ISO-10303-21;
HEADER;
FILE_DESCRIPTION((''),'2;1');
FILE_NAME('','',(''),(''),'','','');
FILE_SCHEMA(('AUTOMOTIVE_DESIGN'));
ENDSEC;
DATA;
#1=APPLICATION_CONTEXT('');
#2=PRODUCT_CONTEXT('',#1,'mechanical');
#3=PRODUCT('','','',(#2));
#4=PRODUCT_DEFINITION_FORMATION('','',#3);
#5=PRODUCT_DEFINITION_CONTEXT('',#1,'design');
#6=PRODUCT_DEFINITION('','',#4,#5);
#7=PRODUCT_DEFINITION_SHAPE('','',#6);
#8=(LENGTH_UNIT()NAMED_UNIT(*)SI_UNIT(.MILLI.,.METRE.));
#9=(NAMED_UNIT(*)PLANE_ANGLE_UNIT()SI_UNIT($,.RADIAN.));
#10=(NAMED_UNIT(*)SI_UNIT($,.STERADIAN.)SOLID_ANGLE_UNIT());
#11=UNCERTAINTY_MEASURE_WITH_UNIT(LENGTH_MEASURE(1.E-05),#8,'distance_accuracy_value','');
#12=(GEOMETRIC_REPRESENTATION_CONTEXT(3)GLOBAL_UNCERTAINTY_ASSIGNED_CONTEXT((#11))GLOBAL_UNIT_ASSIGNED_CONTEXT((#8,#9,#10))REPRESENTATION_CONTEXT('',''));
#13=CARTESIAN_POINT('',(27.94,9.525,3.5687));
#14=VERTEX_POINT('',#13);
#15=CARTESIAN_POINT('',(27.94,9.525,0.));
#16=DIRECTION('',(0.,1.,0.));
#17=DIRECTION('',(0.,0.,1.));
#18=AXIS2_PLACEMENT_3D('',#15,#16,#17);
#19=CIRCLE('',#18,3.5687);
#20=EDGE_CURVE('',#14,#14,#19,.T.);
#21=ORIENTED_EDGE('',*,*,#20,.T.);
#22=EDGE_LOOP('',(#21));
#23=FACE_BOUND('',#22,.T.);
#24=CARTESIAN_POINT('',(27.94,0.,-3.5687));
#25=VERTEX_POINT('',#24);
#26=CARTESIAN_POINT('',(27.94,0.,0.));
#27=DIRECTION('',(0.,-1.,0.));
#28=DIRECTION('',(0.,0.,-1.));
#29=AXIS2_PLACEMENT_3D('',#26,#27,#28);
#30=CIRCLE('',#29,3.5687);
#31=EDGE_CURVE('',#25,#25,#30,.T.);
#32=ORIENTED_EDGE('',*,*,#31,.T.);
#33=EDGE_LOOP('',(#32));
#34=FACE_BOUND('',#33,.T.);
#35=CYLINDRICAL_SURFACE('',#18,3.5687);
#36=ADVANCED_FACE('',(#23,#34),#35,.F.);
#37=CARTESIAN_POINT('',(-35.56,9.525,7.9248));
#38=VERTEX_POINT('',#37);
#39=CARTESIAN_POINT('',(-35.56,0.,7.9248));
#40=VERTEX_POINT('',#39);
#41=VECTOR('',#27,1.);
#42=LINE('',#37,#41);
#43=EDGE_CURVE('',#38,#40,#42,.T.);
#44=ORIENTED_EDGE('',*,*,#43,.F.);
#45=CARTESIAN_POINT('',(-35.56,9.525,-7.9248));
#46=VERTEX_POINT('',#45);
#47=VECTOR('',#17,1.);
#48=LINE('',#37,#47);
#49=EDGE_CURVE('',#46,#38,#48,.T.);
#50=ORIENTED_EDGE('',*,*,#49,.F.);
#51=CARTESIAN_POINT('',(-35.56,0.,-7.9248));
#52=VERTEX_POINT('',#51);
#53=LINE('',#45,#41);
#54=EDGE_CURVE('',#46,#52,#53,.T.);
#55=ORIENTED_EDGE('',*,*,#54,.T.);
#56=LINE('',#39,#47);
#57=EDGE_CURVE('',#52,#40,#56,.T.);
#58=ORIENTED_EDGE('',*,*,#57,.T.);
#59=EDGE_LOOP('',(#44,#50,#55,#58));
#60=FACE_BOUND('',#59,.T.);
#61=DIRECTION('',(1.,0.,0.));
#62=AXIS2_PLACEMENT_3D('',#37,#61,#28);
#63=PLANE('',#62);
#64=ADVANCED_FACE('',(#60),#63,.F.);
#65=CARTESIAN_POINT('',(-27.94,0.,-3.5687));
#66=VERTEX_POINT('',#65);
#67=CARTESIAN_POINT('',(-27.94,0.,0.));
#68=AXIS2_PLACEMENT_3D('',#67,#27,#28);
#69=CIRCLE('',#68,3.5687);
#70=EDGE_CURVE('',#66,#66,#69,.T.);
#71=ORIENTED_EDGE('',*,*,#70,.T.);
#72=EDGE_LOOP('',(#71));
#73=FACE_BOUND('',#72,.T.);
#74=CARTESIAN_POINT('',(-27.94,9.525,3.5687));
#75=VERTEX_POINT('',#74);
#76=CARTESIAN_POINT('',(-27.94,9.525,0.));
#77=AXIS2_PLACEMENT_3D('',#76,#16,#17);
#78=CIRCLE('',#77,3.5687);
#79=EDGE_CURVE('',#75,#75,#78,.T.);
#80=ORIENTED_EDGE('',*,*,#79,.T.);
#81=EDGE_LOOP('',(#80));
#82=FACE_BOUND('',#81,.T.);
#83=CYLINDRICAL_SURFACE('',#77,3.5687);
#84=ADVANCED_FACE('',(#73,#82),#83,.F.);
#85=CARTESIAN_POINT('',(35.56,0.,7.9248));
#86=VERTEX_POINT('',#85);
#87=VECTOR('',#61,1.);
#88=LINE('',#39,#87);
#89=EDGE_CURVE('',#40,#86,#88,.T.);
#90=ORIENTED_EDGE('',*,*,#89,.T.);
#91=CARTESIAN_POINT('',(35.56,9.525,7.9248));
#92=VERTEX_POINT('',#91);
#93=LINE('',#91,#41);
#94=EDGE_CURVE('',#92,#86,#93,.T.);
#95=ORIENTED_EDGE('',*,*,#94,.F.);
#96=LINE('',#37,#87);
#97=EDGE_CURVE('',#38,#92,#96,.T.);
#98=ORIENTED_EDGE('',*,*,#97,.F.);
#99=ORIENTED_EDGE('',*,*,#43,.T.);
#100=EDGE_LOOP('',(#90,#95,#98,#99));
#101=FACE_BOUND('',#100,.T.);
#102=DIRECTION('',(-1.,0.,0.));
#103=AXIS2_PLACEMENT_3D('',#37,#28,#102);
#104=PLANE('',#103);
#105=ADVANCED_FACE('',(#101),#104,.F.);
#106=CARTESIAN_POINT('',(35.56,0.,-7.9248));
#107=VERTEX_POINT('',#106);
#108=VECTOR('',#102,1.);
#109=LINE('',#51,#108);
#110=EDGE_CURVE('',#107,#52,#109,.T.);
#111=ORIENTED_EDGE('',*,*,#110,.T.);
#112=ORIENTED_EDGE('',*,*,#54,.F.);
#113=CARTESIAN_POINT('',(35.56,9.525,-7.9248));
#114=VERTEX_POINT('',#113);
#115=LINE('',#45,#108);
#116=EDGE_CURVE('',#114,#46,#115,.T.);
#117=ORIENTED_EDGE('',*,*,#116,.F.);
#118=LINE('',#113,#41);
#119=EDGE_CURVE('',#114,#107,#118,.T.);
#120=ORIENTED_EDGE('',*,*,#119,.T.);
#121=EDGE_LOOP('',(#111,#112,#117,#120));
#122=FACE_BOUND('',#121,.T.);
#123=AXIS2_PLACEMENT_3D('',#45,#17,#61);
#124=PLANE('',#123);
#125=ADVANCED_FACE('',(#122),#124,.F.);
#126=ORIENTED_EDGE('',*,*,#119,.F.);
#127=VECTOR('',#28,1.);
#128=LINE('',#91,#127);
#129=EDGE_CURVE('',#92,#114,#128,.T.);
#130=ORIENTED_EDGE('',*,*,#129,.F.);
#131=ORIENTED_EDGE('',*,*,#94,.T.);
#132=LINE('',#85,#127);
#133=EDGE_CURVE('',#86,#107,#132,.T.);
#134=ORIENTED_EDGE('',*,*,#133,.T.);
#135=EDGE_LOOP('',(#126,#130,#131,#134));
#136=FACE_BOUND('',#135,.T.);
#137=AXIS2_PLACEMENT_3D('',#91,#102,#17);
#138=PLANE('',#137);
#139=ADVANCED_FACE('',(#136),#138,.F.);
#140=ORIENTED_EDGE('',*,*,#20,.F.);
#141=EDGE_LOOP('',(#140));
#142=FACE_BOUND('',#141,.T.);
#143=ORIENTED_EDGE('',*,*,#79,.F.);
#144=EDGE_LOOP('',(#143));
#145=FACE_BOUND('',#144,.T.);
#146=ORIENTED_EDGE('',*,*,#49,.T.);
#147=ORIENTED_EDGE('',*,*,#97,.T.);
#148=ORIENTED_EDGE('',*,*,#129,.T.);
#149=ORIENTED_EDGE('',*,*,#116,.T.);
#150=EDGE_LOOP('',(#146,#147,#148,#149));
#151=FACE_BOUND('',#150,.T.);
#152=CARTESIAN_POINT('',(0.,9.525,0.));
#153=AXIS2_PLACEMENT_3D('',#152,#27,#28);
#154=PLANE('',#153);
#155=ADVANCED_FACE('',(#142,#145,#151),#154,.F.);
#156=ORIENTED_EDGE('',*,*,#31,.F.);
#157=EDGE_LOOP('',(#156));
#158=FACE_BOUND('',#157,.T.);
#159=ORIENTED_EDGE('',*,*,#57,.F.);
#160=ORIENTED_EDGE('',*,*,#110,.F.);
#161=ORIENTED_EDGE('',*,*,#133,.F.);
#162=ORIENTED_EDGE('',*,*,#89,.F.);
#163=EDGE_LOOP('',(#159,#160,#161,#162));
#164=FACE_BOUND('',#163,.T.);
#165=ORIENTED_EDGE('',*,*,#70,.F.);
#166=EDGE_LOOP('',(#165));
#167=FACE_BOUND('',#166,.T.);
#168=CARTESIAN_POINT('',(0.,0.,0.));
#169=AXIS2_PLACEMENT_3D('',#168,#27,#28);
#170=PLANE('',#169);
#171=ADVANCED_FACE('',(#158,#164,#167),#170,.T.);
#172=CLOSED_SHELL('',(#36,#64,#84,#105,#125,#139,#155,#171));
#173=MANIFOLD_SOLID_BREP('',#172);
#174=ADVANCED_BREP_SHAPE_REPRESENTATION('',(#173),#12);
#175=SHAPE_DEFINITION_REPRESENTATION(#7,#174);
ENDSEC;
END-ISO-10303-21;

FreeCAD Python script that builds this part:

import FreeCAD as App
import Part
import Sketcher
Q = App.Units.Quantity


def add_polygon(sketch, points):
    """Adds a closed chain of lines whose ends are joined by coincident constraints."""
    first, n = sketch.GeometryCount, len(points)
    for a, b in zip(points, points[1:] + points[:1]):
        sketch.addGeometry(Part.LineSegment(App.Vector(*a, 0), App.Vector(*b, 0)), False)
    for i in range(n):
        sketch.addConstraint(Sketcher.Constraint("Coincident", first + i, 2, first + (i + 1) % n, 1))

doc = App.newDocument("Part")
params = doc.addObject("Spreadsheet::Sheet", "Params")
for row, (alias, value) in enumerate([
    ("sketch1_width", "2.8 in"),
    ("sketch1_height", "0.624 in"),
    ("pad1_length", "0.375 in"),
    ("sketch2_diameter", "0.281 in"),
    ("hole_diameter", "0.281 in"),
    ("hole_depth", "0.375 in"),
], start=1):
    params.set(f"A{row}", alias)
    params.set(f"B{row}", "=" + value)
    params.setAlias(f"B{row}", alias)

body = doc.addObject("PartDesign::Body", "Body")

# Sketch on XZ plane
sketch1 = doc.addObject("Sketcher::SketchObject", "Sketch")
body.addObject(sketch1)
sketch1.AttachmentSupport = (doc.XZ_Plane, [""])
sketch1.MapMode = "FlatFace"
add_polygon(sketch1, [(-36, -8), (-36, 8), (36, 8), (36, -8)])  # lines 0-3
sketch1.addConstraint(Sketcher.Constraint("Vertical", 0))
sketch1.addConstraint(Sketcher.Constraint("Horizontal", 1))
sketch1.addConstraint(Sketcher.Constraint("Vertical", 2))
sketch1.addConstraint(Sketcher.Constraint("Horizontal", 3))
sketch1.addConstraint(Sketcher.Constraint("Symmetric", 0, 2, 2, 2, -1, 1))
sketch1.addConstraint(Sketcher.Constraint("DistanceX", 1, 1, 1, 2, Q("2.8 in")))
sketch1.addConstraint(Sketcher.Constraint("DistanceY", 0, 1, 0, 2, Q("0.624 in")))
sketch1.setExpression("Constraints[9]", "Params.sketch1_width")
sketch1.setExpression("Constraints[10]", "Params.sketch1_height")
pad1 = doc.addObject("PartDesign::Pad", "Pad")
body.addObject(pad1)
pad1.Profile = sketch1
pad1.setExpression("Length", "Params.pad1_length")
pad1.Reversed = True

# Sketch on XZ plane
sketch2 = doc.addObject("Sketcher::SketchObject", "Sketch001")
body.addObject(sketch2)
sketch2.AttachmentSupport = (doc.XZ_Plane, [""])
sketch2.MapMode = "FlatFace"
sketch2.AttachmentOffset = App.Placement(App.Vector(0, 0, -0.375 * 25.4), App.Rotation())
sketch2.addGeometry(Part.Circle(App.Vector(-27.9, 0, 0), App.Vector(0, 0, 1), 3.6), False)
sketch2.addGeometry(Part.Circle(App.Vector(27.9, 0, 0), App.Vector(0, 0, 1), 3.6), False)
sketch2.addConstraint(Sketcher.Constraint("Equal", 0, 1))
sketch2.addConstraint(Sketcher.Constraint("Symmetric", 0, 3, 1, 3, -1, 1))
sketch2.addConstraint(Sketcher.Constraint("PointOnObject", 0, 3, -1))
sketch2.addConstraint(Sketcher.Constraint("Diameter", 0, Q("0.281 in")))
sketch2.addConstraint(Sketcher.Constraint("DistanceX", 0, 3, -1, 1, Q("1.1 in")))
sketch2.setExpression("Constraints[3]", "Params.sketch2_diameter")
doc.recompute()
hole = doc.addObject("PartDesign::Hole", "Hole")
body.addObject(hole)
hole.Profile = sketch2
hole.ThreadType = "None"
hole.setExpression("Diameter", "Params.hole_diameter")
hole.DepthType = "Dimension"
hole.setExpression("Depth", "Params.hole_depth")
hole.DrillPoint = "Flat"
hole.Reversed = True

doc.recompute()
